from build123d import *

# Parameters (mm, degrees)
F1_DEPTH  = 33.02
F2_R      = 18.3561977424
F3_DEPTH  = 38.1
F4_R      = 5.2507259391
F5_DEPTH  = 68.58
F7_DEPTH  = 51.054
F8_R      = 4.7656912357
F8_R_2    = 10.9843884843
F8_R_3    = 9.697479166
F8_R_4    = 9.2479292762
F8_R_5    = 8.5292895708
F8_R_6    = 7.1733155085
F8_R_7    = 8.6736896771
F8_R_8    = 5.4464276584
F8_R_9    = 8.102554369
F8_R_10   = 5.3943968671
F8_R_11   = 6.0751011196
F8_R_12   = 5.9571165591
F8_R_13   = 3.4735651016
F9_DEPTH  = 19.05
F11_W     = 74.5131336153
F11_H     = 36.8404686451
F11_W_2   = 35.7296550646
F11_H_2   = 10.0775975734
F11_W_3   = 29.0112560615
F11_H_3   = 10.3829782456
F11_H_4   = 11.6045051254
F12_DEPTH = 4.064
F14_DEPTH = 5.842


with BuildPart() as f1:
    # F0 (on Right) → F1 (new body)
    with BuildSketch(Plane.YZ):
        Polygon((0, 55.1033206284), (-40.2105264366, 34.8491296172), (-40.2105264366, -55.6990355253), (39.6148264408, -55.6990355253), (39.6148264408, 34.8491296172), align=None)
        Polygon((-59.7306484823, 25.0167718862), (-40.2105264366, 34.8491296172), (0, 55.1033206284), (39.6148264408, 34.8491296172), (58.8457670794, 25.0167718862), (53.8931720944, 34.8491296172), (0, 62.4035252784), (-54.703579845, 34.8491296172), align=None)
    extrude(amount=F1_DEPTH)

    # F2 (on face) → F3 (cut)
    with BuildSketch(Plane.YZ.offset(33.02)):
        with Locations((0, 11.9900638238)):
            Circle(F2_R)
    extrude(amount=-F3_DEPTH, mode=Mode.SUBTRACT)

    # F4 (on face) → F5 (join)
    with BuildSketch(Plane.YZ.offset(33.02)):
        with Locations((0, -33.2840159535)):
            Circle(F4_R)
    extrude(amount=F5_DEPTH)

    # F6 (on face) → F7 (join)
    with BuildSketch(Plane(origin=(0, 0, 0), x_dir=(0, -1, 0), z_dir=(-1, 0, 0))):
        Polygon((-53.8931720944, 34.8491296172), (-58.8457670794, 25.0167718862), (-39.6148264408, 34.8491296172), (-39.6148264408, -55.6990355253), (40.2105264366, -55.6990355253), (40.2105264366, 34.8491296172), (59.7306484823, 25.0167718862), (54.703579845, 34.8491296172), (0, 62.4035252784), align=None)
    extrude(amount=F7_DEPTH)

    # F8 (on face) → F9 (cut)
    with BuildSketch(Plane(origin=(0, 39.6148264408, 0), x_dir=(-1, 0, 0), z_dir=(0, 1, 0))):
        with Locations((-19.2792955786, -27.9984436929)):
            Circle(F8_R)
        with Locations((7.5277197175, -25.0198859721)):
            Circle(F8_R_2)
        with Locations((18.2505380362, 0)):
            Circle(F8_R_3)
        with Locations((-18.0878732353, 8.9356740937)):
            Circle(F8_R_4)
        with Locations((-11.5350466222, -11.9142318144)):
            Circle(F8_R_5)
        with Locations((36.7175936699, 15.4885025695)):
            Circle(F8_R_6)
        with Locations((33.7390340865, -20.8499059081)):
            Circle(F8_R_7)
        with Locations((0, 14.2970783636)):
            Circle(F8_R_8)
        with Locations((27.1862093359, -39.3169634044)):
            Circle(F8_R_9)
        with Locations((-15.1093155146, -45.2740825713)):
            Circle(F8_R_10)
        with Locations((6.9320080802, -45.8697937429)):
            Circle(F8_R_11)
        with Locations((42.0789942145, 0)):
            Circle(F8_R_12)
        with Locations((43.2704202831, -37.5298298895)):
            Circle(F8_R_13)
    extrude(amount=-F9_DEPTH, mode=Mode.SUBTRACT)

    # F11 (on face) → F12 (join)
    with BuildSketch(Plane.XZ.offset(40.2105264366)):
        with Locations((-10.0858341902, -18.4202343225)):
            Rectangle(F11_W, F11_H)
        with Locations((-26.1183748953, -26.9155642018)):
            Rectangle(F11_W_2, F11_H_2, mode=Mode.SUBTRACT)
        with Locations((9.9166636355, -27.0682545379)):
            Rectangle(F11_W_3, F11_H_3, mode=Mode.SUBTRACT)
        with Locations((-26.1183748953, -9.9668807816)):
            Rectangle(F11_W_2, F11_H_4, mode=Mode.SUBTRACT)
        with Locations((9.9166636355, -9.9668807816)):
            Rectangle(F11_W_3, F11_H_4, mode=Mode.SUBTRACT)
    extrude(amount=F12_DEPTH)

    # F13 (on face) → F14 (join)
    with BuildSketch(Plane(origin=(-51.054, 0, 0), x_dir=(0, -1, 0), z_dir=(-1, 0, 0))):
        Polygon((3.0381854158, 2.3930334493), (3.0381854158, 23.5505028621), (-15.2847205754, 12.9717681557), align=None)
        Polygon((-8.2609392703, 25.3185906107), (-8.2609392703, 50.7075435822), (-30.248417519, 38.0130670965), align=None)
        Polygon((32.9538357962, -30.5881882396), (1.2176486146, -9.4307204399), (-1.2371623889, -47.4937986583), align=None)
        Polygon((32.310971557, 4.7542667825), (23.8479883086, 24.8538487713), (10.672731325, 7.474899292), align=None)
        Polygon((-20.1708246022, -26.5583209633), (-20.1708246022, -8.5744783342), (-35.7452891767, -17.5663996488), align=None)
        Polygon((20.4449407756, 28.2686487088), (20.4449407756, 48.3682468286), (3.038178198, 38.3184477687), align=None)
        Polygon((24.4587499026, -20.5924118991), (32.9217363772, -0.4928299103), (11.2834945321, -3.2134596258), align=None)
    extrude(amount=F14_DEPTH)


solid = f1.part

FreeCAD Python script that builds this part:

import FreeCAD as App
import Part
import Sketcher
Q = App.Units.Quantity


def add_polygon(sketch, points):
    """Adds a closed chain of lines whose ends are joined by coincident constraints."""
    first, n = sketch.GeometryCount, len(points)
    for a, b in zip(points, points[1:] + points[:1]):
        sketch.addGeometry(Part.LineSegment(App.Vector(*a, 0), App.Vector(*b, 0)), False)
    for i in range(n):
        sketch.addConstraint(Sketcher.Constraint("Coincident", first + i, 2, first + (i + 1) % n, 1))

doc = App.newDocument("Part")
body = doc.addObject("PartDesign::Body", "Body")

# Sketch on YZ plane
sketch1 = doc.addObject("Sketcher::SketchObject", "Sketch")
body.addObject(sketch1)
sketch1.AttachmentSupport = (doc.YZ_Plane, [""])
sketch1.MapMode = "FlatFace"
add_polygon(sketch1, [(-40, 35), (-40, -56), (40, -56), (40, 35), (59, 25), (54, 35), (0, 62), (-55, 35), (-60, 25)])  # lines 0-8
sketch1.addConstraint([
    Sketcher.Constraint("Vertical", 0),
    Sketcher.Constraint("Horizontal", 1),
    Sketcher.Constraint("Vertical", 2),
    Sketcher.Constraint("PointOnObject", 5, 2, -2),
    Sketcher.Constraint("Parallel", 3, 5),
    Sketcher.Constraint("Perpendicular", 4, 6),
    Sketcher.Constraint("Perpendicular", 5, 7),
    Sketcher.Constraint("Parallel", 6, 8),
    Sketcher.Constraint("Horizontal", 2, 2, 4, 2),
    Sketcher.Constraint("Horizontal", 4, 2, 6, 2),
    Sketcher.Constraint("Horizontal", 3, 2, 7, 2),
    Sketcher.Constraint("Horizontal", 6, 2, 8, 2),
    Sketcher.Constraint("DistanceX", 0, 2, 4, 2, Q("94.103699 mm")),
    Sketcher.Constraint("Distance", 3, Q("21.598711 mm")),
    Sketcher.Constraint("Distance", 5, Q("60.52866 mm")),
    Sketcher.Constraint("DistanceX", 1, 1, 1, 2, Q("79.825353 mm")),
    Sketcher.Constraint("DistanceY", 0, 2, 0, 1, Q("90.548165 mm")),
    Sketcher.Constraint("DistanceY", -1, 1, 2, 2, Q("34.84913 mm")),
])
pad1 = doc.addObject("PartDesign::Pad", "Pad")
body.addObject(pad1)
pad1.Profile = sketch1
pad1.Length = Q("1.3 in")

# Sketch on YZ plane
sketch2 = doc.addObject("Sketcher::SketchObject", "Sketch001")
body.addObject(sketch2)
sketch2.AttachmentSupport = (doc.YZ_Plane, [""])
sketch2.MapMode = "FlatFace"
sketch2.AttachmentOffset = App.Placement(App.Vector(0, 0, 1.3 * 25.4), App.Rotation())
sketch2.addGeometry(Part.Circle(App.Vector(0, 12, 0), App.Vector(0, 0, 1), 18), False)
sketch2.addConstraint([
    Sketcher.Constraint("PointOnObject", 0, 3, -2),
    Sketcher.Constraint("Diameter", 0, Q("36.712395 mm")),
    Sketcher.Constraint("DistanceY", -1, 1, 0, 3, Q("11.990064 mm")),
])
pocket1 = doc.addObject("PartDesign::Pocket", "Pocket")
body.addObject(pocket1)
pocket1.Profile = sketch2
pocket1.Length = Q("1.5 in")

# Sketch on YZ plane
sketch3 = doc.addObject("Sketcher::SketchObject", "Sketch002")
body.addObject(sketch3)
sketch3.AttachmentSupport = (doc.YZ_Plane, [""])
sketch3.MapMode = "FlatFace"
sketch3.AttachmentOffset = App.Placement(App.Vector(0, 0, 1.3 * 25.4), App.Rotation())
sketch3.addGeometry(Part.Circle(App.Vector(0, -33, 0), App.Vector(0, 0, 1), 5), False)
sketch3.addConstraint([
    Sketcher.Constraint("PointOnObject", 0, 3, -2),
    Sketcher.Constraint("Diameter", 0, Q("10.501452 mm")),
    Sketcher.Constraint("DistanceY", 0, 3, -1, 1, Q("33.284016 mm")),
])
pad2 = doc.addObject("PartDesign::Pad", "Pad001")
body.addObject(pad2)
pad2.Profile = sketch3
pad2.Length = Q("2.7 in")

# Sketch on YZ plane
sketch4 = doc.addObject("Sketcher::SketchObject", "Sketch003")
body.addObject(sketch4)
sketch4.AttachmentSupport = (doc.YZ_Plane, [""])
sketch4.MapMode = "FlatFace"
add_polygon(sketch4, [(54, 35), (59, 25), (40, 35), (40, -56), (-40, -56), (-40, 35), (-60, 25), (-55, 35), (0, 62)])  # lines 0-8
sketch4.addConstraint([
    Sketcher.Constraint("Vertical", 2),
    Sketcher.Constraint("Horizontal", 3),
    Sketcher.Constraint("Vertical", 4),
    Sketcher.Constraint("PointOnObject", 7, 2, -2),
    Sketcher.Constraint("Perpendicular", 0, 5),
    Sketcher.Constraint("Perpendicular", 1, 6),
    Sketcher.Constraint("Parallel", 5, 7),
    Sketcher.Constraint("Perpendicular", 6, 8),
    Sketcher.Constraint("Horizontal", 1, 2, 4, 2),
    Sketcher.Constraint("Horizontal", 0, 2, 5, 2),
    Sketcher.Constraint("Horizontal", 4, 2, 6, 2),
    Sketcher.Constraint("Horizontal", 6, 2, 8, 2),
    Sketcher.Constraint("DistanceX", 4, 2, 8, 2, Q("94.103699 mm")),
    Sketcher.Constraint("Distance", 1, Q("21.598711 mm")),
    Sketcher.Constraint("Distance", 8, Q("60.52866 mm")),
    Sketcher.Constraint("DistanceX", 3, 2, 3, 1, Q("79.825353 mm")),
    Sketcher.Constraint("DistanceY", 2, 2, 2, 1, Q("90.548165 mm")),
    Sketcher.Constraint("DistanceY", -1, 1, 0, 2, Q("25.016772 mm")),
])
pad3 = doc.addObject("PartDesign::Pad", "Pad002")
body.addObject(pad3)
pad3.Profile = sketch4
pad3.Length = Q("2.01 in")
pad3.Reversed = True

# Sketch on XZ plane
sketch5 = doc.addObject("Sketcher::SketchObject", "Sketch004")
body.addObject(sketch5)
sketch5.AttachmentSupport = (doc.XZ_Plane, [""])
sketch5.MapMode = "FlatFace"
sketch5.AttachmentOffset = App.Placement(App.Vector(0, 0, -39.614826), App.Rotation())
sketch5.addGeometry([
    Part.Circle(App.Vector(19.3, -28, 0), App.Vector(0, 0, 1), 4.8),  # 0
    Part.Circle(App.Vector(-7.5, -25, 0), App.Vector(0, 0, 1), 11),  # 1
    Part.Circle(App.Vector(-18.3, 0, 0), App.Vector(0, 0, 1), 9.7),  # 2
    Part.Circle(App.Vector(18.1, 8.9, 0), App.Vector(0, 0, 1), 9.2),  # 3
    Part.Circle(App.Vector(11.5, -11.9, 0), App.Vector(0, 0, 1), 8.5),  # 4
    Part.Circle(App.Vector(-36.7, 15.5, 0), App.Vector(0, 0, 1), 7.2),  # 5
    Part.Circle(App.Vector(-33.7, -20.8, 0), App.Vector(0, 0, 1), 8.7),  # 6
    Part.Circle(App.Vector(0, 14.3, 0), App.Vector(0, 0, 1), 5.4),  # 7
    Part.Circle(App.Vector(-27.2, -39.3, 0), App.Vector(0, 0, 1), 8.1),  # 8
    Part.Circle(App.Vector(15.1, -45.3, 0), App.Vector(0, 0, 1), 5.4),  # 9
    Part.Circle(App.Vector(-6.9, -45.9, 0), App.Vector(0, 0, 1), 6.1),  # 10
    Part.Circle(App.Vector(-42.1, 0, 0), App.Vector(0, 0, 1), 6),  # 11
    Part.Circle(App.Vector(-43.3, -37.5, 0), App.Vector(0, 0, 1), 3.5),  # 12
], False)
sketch5.addConstraint([
    Sketcher.Constraint("PointOnObject", 2, 3, -1),
    Sketcher.Constraint("PointOnObject", 7, 3, -2),
    Sketcher.Constraint("PointOnObject", 11, 3, -1),
    Sketcher.Constraint("Diameter", 2, Q("19.394958 mm")),
    Sketcher.Constraint("Diameter", 3, Q("18.495859 mm")),
    Sketcher.Constraint("Diameter", 4, Q("17.058579 mm")),
    Sketcher.Constraint("Diameter", 5, Q("14.346631 mm")),
    Sketcher.Constraint("Diameter", 6, Q("17.347379 mm")),
    Sketcher.Constraint("Diameter", 8, Q("16.205109 mm")),
    Sketcher.Constraint("Diameter", 12, Q("6.94713 mm")),
    Sketcher.Constraint("Diameter", 0, Q("9.531382 mm")),
    Sketcher.Constraint("Diameter", 1, Q("21.968777 mm")),
    Sketcher.Constraint("Diameter", 7, Q("10.892855 mm")),
    Sketcher.Constraint("Diameter", 9, Q("10.788794 mm")),
    Sketcher.Constraint("Diameter", 10, Q("12.150202 mm")),
    Sketcher.Constraint("Diameter", 11, Q("11.914233 mm")),
    Sketcher.Constraint("DistanceX", 8, 3, 10, 3, Q("20.254201 mm")),
    Sketcher.Constraint("DistanceX", 11, 3, 5, 3, Q("5.361401 mm")),
    Sketcher.Constraint("DistanceX", 12, 3, 1, 3, Q("35.742701 mm")),
    Sketcher.Constraint("DistanceX", 1, 3, -1, 1, Q("7.52772 mm")),
    Sketcher.Constraint("DistanceX", 2, 3, -1, 1, Q("18.250538 mm")),
    Sketcher.Constraint("DistanceY", 4, 3, -1, 1, Q("11.914232 mm")),
    Sketcher.Constraint("DistanceY", -1, 1, 7, 3, Q("14.297078 mm")),
    Sketcher.Constraint("DistanceX", 8, 3, -1, 1, Q("27.186209 mm")),
    Sketcher.Constraint("DistanceY", 12, 3, -1, 1, Q("37.52983 mm")),
    Sketcher.Constraint("DistanceX", 2, 3, 3, 3, Q("36.338411 mm")),
    Sketcher.Constraint("DistanceY", 1, 3, 3, 3, Q("33.95556 mm")),
    Sketcher.Constraint("DistanceX", 4, 3, 0, 3, Q("7.744249 mm")),
    Sketcher.Constraint("DistanceY", 0, 3, 4, 3, Q("16.084212 mm")),
    Sketcher.Constraint("DistanceY", 1, 3, 5, 3, Q("40.508389 mm")),
    Sketcher.Constraint("DistanceX", 5, 3, 4, 3, Q("48.25264 mm")),
    Sketcher.Constraint("DistanceY", 1, 3, 6, 3, Q("4.16998 mm")),
    Sketcher.Constraint("DistanceX", 5, 3, 6, 3, Q("2.97856 mm")),
    Sketcher.Constraint("DistanceY", 8, 3, 4, 3, Q("27.402732 mm")),
    Sketcher.Constraint("DistanceX", 9, 3, 0, 3, Q("4.16998 mm")),
    Sketcher.Constraint("DistanceY", 9, 3, 0, 3, Q("17.275639 mm")),
    Sketcher.Constraint("DistanceY", 10, 3, 8, 3, Q("6.55283 mm")),
    Sketcher.Constraint("DistanceX", -1, 1, 0, 3, Q("19.279296 mm")),
    Sketcher.Constraint("DistanceY", 1, 3, -1, 1, Q("25.019886 mm")),
])
pocket2 = doc.addObject("PartDesign::Pocket", "Pocket001")
body.addObject(pocket2)
pocket2.Profile = sketch5
pocket2.Length = Q("0.75 in")
pocket2.Reversed = True

# Sketch on XZ plane
sketch6 = doc.addObject("Sketcher::SketchObject", "Sketch005")
body.addObject(sketch6)
sketch6.AttachmentSupport = (doc.XZ_Plane, [""])
sketch6.MapMode = "FlatFace"
sketch6.AttachmentOffset = App.Placement(App.Vector(0, 0, 40.210526), App.Rotation())
add_polygon(sketch6, [(-47, 0), (-47, -37), (27, -37), (27, 0)])  # lines 0-3
add_polygon(sketch6, [(-8, -32), (-44, -32), (-44, -22), (-8, -22)])  # lines 4-7
add_polygon(sketch6, [(24, -32), (-5, -32), (-5, -22), (24, -22)])  # lines 8-11
add_polygon(sketch6, [(-8, -16), (-44, -16), (-44, -4), (-8, -4)])  # lines 12-15
add_polygon(sketch6, [(24, -16), (-5, -16), (-5, -4), (24, -4)])  # lines 16-19
sketch6.addConstraint([
    Sketcher.Constraint("Vertical", 0),
    Sketcher.Constraint("Horizontal", 1),
    Sketcher.Constraint("Vertical", 2),
    Sketcher.Constraint("Horizontal", 3),
    Sketcher.Constraint("Horizontal", 4),
    Sketcher.Constraint("Vertical", 5),
    Sketcher.Constraint("Horizontal", 6),
    Sketcher.Constraint("Vertical", 7),
    Sketcher.Constraint("Horizontal", 8),
    Sketcher.Constraint("Vertical", 9),
    Sketcher.Constraint("Horizontal", 10),
    Sketcher.Constraint("Vertical", 11),
    Sketcher.Constraint("Horizontal", 12),
    Sketcher.Constraint("Vertical", 13),
    Sketcher.Constraint("Horizontal", 14),
    Sketcher.Constraint("Vertical", 15),
    Sketcher.Constraint("Horizontal", 16),
    Sketcher.Constraint("Vertical", 17),
    Sketcher.Constraint("Horizontal", 18),
    Sketcher.Constraint("Vertical", 19),
    Sketcher.Constraint("PointOnObject", 2, 2, -1),
    Sketcher.Constraint("Horizontal", 6, 2, 9, 2),
    Sketcher.Constraint("Horizontal", 15, 2, 16, 2),
    Sketcher.Constraint("Horizontal", 14, 2, 17, 2),
    Sketcher.Constraint("Vertical", 5, 2, 12, 2),
    Sketcher.Constraint("Vertical", 7, 2, 14, 2),
    Sketcher.Constraint("Vertical", 9, 2, 16, 2),
    Sketcher.Constraint("Vertical", 11, 2, 18, 2),
    Sketcher.Constraint("DistanceY", 0, 2, 0, 1, Q("36.840469 mm")),
    Sketcher.Constraint("DistanceY", 9, 1, 9, 2, Q("10.382978 mm")),
    Sketcher.Constraint("DistanceX", 0, 2, -1, 1, Q("47.342401 mm")),
    Sketcher.Constraint("DistanceX", 0, 2, 4, 2, Q("3.359199 mm")),
    Sketcher.Constraint("DistanceX", 1, 1, 1, 2, Q("74.513134 mm")),
    Sketcher.Constraint("DistanceX", 4, 2, 4, 1, Q("35.729655 mm")),
    Sketcher.Constraint("DistanceX", 8, 2, 8, 1, Q("29.011256 mm")),
    Sketcher.Constraint("DistanceY", 5, 1, 5, 2, Q("10.077598 mm")),
    Sketcher.Constraint("DistanceY", 13, 1, 13, 2, Q("11.604505 mm")),
    Sketcher.Constraint("DistanceX", -1, 1, 10, 2, Q("24.422292 mm")),
    Sketcher.Constraint("DistanceY", 13, 2, -1, 1, Q("4.164628 mm")),
    Sketcher.Constraint("DistanceY", 4, 2, 12, 2, Q("16.18523 mm")),
])
pad4 = doc.addObject("PartDesign::Pad", "Pad003")
body.addObject(pad4)
pad4.Profile = sketch6
pad4.Length = Q("0.16 in")

# Sketch on YZ plane
sketch7 = doc.addObject("Sketcher::SketchObject", "Sketch006")
body.addObject(sketch7)
sketch7.AttachmentSupport = (doc.YZ_Plane, [""])
sketch7.MapMode = "FlatFace"
sketch7.AttachmentOffset = App.Placement(App.Vector(0, 0, -2.01 * 25.4), App.Rotation())
add_polygon(sketch7, [(-3, 2), (-3, 24), (15, 13)])  # lines 0-2
add_polygon(sketch7, [(8, 25), (8, 51), (30, 38)])  # lines 3-5
add_polygon(sketch7, [(-33, -31), (-1, -9), (1, -47)])  # lines 6-8
add_polygon(sketch7, [(-32, 5), (-24, 25), (-11, 7)])  # lines 9-11
add_polygon(sketch7, [(20, -27), (20, -9), (36, -18)])  # lines 12-14
add_polygon(sketch7, [(-20, 28), (-20, 48), (-3, 38)])  # lines 15-17
add_polygon(sketch7, [(-24, -21), (-33, 0), (-11, -3)])  # lines 18-20
sketch7.addConstraint([
    Sketcher.Constraint("Vertical", 0),
    Sketcher.Constraint("Vertical", 3),
    Sketcher.Constraint("Vertical", 12),
    Sketcher.Constraint("Vertical", 15),
    Sketcher.Constraint("Parallel", 1, 4),
    Sketcher.Constraint("Parallel", 2, 5),
    Sketcher.Constraint("Parallel", 4, 13),
    Sketcher.Constraint("Parallel", 5, 14),
    Sketcher.Constraint("Parallel", 13, 16),
    Sketcher.Constraint("Parallel", 14, 17),
    Sketcher.Constraint("Equal", 1, 2),
    Sketcher.Constraint("Equal", 6, 7),
    Sketcher.Constraint("Equal", 7, 8),
    Sketcher.Constraint("Equal", 9, 10),
    Sketcher.Constraint("Equal", 10, 11),
    Sketcher.Constraint("Equal", 11, 18),
    Sketcher.Constraint("Equal", 18, 19),
    Sketcher.Constraint("Equal", 19, 20),
    Sketcher.Constraint("Angle", 1, Q("-30 deg")),
    Sketcher.Constraint("DistanceY", 15, 1, 15, 2, Q("20.099598 mm")),
    Sketcher.Constraint("DistanceY", 0, 1, 0, 2, Q("21.157469 mm")),
    Sketcher.Constraint("DistanceY", 7, 2, -1, 1, Q("47.493799 mm")),
    Sketcher.Constraint("DistanceY", -1, 1, 10, 2, Q("7.474899 mm")),
    Sketcher.Constraint("DistanceY", 13, 2, -1, 1, Q("17.5664 mm")),
    Sketcher.Constraint("DistanceY", 1, 2, 4, 2, Q("25.041299 mm")),
    Sketcher.Constraint("DistanceY", 7, 2, 0, 2, Q("71.044302 mm")),
    Sketcher.Constraint("DistanceX", 8, 2, 7, 2, Q("34.190998 mm")),
    Sketcher.Constraint("DistanceY", 14, 2, 6, 2, Q("17.127601 mm")),
    Sketcher.Constraint("DistanceY", 9, 2, 15, 2, Q("23.514398 mm")),
    Sketcher.Constraint("DistanceX", 8, 2, 18, 2, Q("0.032099 mm")),
    Sketcher.Constraint("DistanceX", 20, 2, 6, 2, Q("23.241101 mm")),
    Sketcher.Constraint("DistanceY", 3, 1, 3, 2, Q("25.388953 mm")),
    Sketcher.Constraint("DistanceY", 12, 1, 12, 2, Q("17.983843 mm")),
    Sketcher.Constraint("DistanceX", -1, 1, 1, 2, Q("15.284721 mm")),
    Sketcher.Constraint("DistanceX", -1, 1, 3, 2, Q("8.260939 mm")),
    Sketcher.Constraint("DistanceX", 6, 2, -1, 1, Q("1.217649 mm")),
    Sketcher.Constraint("DistanceX", 9, 2, -1, 1, Q("23.847988 mm")),
    Sketcher.Constraint("DistanceY", -1, 1, 9, 2, Q("24.853849 mm")),
    Sketcher.Constraint("DistanceX", 10, 2, -1, 1, Q("10.672731 mm")),
    Sketcher.Constraint("DistanceX", -1, 1, 13, 2, Q("35.745289 mm")),
    Sketcher.Constraint("DistanceX", 15, 2, -1, 1, Q("20.444941 mm")),
    Sketcher.Constraint("DistanceY", 18, 2, -1, 1, Q("0.49283 mm")),
])
pad5 = doc.addObject("PartDesign::Pad", "Pad004")
body.addObject(pad5)
pad5.Profile = sketch7
pad5.Length = Q("0.23 in")
pad5.Reversed = True

doc.recompute()
